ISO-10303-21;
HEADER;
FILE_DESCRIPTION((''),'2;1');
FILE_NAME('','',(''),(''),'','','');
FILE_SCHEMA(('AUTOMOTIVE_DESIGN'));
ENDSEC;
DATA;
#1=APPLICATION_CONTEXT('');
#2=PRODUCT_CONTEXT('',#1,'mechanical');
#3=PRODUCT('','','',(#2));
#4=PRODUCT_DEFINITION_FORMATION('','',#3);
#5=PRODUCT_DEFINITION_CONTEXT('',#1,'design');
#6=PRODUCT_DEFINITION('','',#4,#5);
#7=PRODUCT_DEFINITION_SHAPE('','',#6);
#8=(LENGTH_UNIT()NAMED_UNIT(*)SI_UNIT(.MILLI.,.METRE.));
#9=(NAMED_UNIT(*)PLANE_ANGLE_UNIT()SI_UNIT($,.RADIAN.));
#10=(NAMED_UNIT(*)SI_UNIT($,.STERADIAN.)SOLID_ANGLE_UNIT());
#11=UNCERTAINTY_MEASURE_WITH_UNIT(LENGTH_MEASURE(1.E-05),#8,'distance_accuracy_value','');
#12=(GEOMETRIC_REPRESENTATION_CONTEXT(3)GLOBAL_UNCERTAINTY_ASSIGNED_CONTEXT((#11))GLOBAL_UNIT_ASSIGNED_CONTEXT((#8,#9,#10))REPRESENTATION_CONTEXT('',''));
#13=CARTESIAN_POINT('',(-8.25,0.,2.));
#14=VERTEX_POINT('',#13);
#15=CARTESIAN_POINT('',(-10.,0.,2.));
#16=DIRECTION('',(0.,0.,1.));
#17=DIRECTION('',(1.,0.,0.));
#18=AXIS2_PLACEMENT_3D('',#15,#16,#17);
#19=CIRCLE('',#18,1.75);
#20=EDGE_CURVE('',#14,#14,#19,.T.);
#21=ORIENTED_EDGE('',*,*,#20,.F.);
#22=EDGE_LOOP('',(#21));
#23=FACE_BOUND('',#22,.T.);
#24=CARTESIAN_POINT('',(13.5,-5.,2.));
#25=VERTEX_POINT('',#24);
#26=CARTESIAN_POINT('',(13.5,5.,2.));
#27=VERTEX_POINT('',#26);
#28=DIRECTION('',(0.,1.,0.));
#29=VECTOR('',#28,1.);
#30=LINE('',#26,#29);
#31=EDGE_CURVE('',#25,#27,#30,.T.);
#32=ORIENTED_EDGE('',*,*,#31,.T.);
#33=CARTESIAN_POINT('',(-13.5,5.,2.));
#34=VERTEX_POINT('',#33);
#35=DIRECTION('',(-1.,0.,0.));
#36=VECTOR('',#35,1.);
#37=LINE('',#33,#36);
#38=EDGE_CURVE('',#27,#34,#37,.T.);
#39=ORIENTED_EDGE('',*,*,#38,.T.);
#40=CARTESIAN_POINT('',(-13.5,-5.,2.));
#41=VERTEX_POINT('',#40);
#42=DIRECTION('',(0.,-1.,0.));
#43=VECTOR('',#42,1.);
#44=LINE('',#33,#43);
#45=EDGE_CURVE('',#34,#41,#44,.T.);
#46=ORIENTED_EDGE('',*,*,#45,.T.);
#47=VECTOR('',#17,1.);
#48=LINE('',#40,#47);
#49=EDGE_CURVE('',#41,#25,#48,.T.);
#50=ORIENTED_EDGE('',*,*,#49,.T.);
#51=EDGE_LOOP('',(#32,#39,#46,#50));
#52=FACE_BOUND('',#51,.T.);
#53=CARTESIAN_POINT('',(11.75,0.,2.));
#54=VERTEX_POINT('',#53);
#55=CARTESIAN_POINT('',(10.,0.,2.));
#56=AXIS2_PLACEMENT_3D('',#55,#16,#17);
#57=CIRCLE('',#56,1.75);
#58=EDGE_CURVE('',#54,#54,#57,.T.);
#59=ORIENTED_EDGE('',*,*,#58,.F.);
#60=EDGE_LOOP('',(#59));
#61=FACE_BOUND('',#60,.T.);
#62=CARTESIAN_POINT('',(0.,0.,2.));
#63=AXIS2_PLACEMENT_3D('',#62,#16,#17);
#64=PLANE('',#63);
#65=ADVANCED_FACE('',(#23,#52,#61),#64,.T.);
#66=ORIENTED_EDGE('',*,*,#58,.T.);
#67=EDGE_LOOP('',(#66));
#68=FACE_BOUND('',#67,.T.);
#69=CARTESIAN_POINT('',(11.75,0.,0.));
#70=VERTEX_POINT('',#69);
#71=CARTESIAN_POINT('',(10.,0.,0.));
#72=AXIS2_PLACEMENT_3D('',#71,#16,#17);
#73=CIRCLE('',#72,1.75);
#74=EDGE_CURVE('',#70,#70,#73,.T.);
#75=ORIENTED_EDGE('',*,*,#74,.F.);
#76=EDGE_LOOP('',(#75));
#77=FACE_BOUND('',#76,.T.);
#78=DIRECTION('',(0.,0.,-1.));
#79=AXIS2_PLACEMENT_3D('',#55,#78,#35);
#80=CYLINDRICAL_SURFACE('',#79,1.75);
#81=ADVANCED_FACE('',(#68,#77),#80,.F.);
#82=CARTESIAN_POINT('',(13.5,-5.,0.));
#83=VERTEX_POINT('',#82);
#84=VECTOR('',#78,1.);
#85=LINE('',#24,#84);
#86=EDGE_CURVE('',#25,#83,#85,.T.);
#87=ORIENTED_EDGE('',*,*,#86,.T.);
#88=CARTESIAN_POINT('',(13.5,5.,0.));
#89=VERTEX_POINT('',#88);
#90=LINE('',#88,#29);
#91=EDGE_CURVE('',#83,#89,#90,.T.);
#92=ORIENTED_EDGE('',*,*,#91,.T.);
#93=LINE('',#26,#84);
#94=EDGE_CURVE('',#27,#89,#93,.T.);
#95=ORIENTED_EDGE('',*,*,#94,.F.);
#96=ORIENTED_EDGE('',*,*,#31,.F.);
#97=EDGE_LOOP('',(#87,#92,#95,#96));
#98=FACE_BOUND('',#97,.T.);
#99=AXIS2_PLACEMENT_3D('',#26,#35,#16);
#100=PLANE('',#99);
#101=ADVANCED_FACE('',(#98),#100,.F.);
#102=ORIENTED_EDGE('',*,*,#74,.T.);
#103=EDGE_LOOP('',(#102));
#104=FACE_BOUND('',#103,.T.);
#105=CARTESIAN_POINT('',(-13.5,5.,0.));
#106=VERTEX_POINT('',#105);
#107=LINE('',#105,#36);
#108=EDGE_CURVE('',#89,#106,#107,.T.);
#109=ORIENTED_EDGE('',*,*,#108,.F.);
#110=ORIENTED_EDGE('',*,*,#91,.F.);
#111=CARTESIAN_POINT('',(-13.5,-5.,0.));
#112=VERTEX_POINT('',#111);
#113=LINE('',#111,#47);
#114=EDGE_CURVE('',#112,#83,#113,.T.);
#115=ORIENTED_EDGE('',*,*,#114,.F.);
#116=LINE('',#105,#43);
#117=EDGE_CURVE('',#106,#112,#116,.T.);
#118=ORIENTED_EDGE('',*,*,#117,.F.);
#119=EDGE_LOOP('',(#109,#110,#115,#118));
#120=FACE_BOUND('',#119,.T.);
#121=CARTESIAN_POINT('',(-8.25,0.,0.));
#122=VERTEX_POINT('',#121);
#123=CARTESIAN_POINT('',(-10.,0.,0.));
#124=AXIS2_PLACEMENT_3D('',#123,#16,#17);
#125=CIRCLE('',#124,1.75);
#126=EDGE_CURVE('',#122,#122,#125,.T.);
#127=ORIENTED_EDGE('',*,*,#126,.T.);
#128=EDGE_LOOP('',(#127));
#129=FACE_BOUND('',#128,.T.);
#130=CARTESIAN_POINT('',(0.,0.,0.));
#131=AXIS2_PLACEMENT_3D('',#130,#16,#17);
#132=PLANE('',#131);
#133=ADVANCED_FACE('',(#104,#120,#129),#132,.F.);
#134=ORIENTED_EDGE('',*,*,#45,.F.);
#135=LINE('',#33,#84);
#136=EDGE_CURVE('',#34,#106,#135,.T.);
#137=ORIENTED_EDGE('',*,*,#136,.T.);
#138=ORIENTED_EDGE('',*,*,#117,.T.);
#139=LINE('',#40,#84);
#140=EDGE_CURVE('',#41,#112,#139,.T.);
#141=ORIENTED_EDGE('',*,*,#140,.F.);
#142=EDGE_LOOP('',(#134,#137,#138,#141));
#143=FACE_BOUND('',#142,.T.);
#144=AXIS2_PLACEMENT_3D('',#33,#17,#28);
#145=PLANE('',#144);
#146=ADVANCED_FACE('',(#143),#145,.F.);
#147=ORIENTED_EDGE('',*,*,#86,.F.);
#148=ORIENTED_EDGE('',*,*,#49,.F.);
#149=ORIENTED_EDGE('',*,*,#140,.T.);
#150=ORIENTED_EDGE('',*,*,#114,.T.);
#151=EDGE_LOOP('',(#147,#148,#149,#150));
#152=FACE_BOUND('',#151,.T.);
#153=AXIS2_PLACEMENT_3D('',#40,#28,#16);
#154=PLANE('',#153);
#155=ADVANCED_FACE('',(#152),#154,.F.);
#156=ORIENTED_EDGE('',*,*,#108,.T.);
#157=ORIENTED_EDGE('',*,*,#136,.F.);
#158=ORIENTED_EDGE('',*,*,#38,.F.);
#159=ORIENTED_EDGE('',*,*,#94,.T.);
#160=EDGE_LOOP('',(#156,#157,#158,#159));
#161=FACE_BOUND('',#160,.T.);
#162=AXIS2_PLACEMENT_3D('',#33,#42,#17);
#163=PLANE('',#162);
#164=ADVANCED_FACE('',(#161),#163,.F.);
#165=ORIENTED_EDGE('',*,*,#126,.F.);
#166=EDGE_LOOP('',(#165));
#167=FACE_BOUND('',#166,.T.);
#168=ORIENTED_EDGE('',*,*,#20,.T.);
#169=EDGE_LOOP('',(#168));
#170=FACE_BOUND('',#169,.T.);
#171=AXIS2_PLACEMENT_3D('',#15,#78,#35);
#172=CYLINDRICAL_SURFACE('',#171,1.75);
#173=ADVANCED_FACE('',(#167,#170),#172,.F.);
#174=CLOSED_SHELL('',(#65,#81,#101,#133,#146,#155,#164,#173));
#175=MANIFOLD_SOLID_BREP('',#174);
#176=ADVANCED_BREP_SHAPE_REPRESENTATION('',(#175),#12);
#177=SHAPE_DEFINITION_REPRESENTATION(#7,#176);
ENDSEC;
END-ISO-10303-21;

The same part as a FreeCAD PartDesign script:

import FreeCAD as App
import Part
import Sketcher

V = App.Vector

doc = App.newDocument("Part")
params = doc.addObject("Spreadsheet::Sheet", "Params")
for row, (alias, value) in enumerate([
    ("sketch1_diameter", "3.5 mm"),
    ("sketch1_width", "27 mm"),
    ("sketch1_height", "10 mm"),
    ("pad1_length", "2 mm"),
], start=1):
    params.set(f"A{row}", alias)
    params.set(f"B{row}", "=" + value)
    params.setAlias(f"B{row}", alias)

body = doc.addObject("PartDesign::Body", "Body")

# Sketch on XY plane
sketch1 = body.newObject("Sketcher::SketchObject", "Sketch")
sketch1.AttachmentSupport = (doc.getObject("XY_Plane"), [""])
sketch1.MapMode = "FlatFace"
sketch1.addGeometry([
    Part.LineSegment(V(-13.5, 5, 0), V(-13.5, -5, 0)),  # 0
    Part.LineSegment(V(-13.5, -5, 0), V(13.5, -5, 0)),  # 1
    Part.LineSegment(V(13.5, -5, 0), V(13.5, 5, 0)),  # 2
    Part.LineSegment(V(13.5, 5, 0), V(-13.5, 5, 0)),  # 3
    Part.Circle(V(-10, 0, 0), V(0, 0, 1), 1.8),  # 4
    Part.Circle(V(10, 0, 0), V(0, 0, 1), 1.8),  # 5
], False)
sketch1.addConstraint([
    Sketcher.Constraint("Coincident", 0, 2, 1, 1),
    Sketcher.Constraint("Coincident", 1, 2, 2, 1),
    Sketcher.Constraint("Coincident", 2, 2, 3, 1),
    Sketcher.Constraint("Coincident", 3, 2, 0, 1),
    Sketcher.Constraint("Vertical", 0),
    Sketcher.Constraint("Horizontal", 1),
    Sketcher.Constraint("Vertical", 2),
    Sketcher.Constraint("Horizontal", 3),
    Sketcher.Constraint("Equal", 4, 5),
    Sketcher.Constraint("Symmetric", 4, 3, 5, 3, -1, 1),
    Sketcher.Constraint("Symmetric", 0, 2, 2, 2, -1, 1),
    Sketcher.Constraint("PointOnObject", 4, 3, -1),
    Sketcher.Constraint("Diameter", 4, 3.5),
    Sketcher.Constraint("DistanceX", 1, 1, 1, 2, 27.0),
    Sketcher.Constraint("DistanceY", 0, 2, 0, 1, 10.0),
    Sketcher.Constraint("DistanceX", 4, 3, -1, 1, 10.0),
])
sketch1.setExpression("Constraints[12]", "Params.sketch1_diameter")
sketch1.setExpression("Constraints[13]", "Params.sketch1_width")
sketch1.setExpression("Constraints[14]", "Params.sketch1_height")
pad1 = body.newObject("PartDesign::Pad", "Pad")
pad1.Profile = sketch1
pad1.setExpression("Length", "Params.pad1_length")

doc.recompute()
